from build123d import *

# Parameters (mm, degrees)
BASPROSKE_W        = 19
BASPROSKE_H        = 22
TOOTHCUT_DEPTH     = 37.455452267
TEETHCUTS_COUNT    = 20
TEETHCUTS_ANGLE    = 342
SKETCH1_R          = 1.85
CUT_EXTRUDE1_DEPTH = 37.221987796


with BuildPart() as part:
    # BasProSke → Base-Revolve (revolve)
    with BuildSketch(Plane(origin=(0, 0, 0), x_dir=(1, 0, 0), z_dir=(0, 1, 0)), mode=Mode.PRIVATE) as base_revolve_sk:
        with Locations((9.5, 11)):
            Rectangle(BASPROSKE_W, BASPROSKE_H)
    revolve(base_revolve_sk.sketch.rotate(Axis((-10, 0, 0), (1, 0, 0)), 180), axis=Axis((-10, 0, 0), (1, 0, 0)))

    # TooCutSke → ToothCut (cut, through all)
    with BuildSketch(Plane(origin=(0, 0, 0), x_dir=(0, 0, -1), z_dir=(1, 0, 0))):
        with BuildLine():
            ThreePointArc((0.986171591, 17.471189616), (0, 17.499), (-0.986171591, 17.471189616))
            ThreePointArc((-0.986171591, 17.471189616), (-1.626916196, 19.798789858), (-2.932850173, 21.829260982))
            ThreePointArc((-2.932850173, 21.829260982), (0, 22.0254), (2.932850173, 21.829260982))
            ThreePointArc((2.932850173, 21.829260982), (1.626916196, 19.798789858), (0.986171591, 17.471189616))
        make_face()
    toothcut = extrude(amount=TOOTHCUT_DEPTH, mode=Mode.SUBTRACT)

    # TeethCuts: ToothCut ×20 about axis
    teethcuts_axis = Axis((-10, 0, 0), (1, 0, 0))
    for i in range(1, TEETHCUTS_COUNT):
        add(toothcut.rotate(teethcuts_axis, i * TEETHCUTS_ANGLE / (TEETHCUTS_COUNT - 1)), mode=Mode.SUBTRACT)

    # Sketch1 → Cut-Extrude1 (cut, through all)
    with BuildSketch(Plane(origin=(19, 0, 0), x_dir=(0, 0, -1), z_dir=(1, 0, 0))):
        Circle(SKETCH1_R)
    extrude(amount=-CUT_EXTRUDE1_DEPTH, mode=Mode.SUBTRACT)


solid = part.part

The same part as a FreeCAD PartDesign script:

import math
import FreeCAD as App
import Part
import Sketcher
from FreeCAD import Vector


def add_polygon(sketch, points):
    """Adds a closed chain of lines whose ends are joined by coincident constraints."""
    first, n = sketch.GeometryCount, len(points)
    for a, b in zip(points, points[1:] + points[:1]):
        sketch.addGeometry(Part.LineSegment(App.Vector(*a, 0), App.Vector(*b, 0)), False)
    for i in range(n):
        sketch.addConstraint(Sketcher.Constraint("Coincident", first + i, 2, first + (i + 1) % n, 1))

doc = App.newDocument("Part")
body = doc.addObject("PartDesign::Body", "Body")

sketch1 = body.newObject("Sketcher::SketchObject", "Sketch")
sketch1.AttachmentSupport = (doc.getObject("XZ_Plane"), [""])
sketch1.MapMode = "FlatFace"
add_polygon(sketch1, [(0, -22), (0, 0), (19, 0), (19, -22)])
sketch1.addConstraint([
    Sketcher.Constraint("Vertical", 0),
    Sketcher.Constraint("Horizontal", 1),
    Sketcher.Constraint("Vertical", 2),
    Sketcher.Constraint("Horizontal", 3),
    Sketcher.Constraint("Coincident", 0, 2, -1, 1),
    Sketcher.Constraint("DistanceX", 1, 1, 1, 2, 19.0),
    Sketcher.Constraint("DistanceY", 0, 1, 0, 2, 22.0),
])
revolution = body.newObject("PartDesign::Revolution", "Revolution")
revolution.Profile = sketch1
revolution.ReferenceAxis = (sketch1, ["H_Axis"])
revolution.Angle = 360

sketch2 = body.newObject("Sketcher::SketchObject", "Sketch001")
sketch2.AttachmentSupport = (doc.getObject("YZ_Plane"), [""])
sketch2.MapMode = "FlatFace"
sketch2.addGeometry([
    Part.ArcOfCircle(Part.Circle(Vector(0, 0, 0), Vector(0, 0, 1), 17.5), math.radians(-3.23), math.radians(3.23)),
    Part.ArcOfCircle(Part.Circle(Vector(16.5, -8.9, 0), Vector(0, 0, 1), 8), math.radians(49), math.radians(83)),
    Part.ArcOfCircle(Part.Circle(Vector(0, 0, 0), Vector(0, 0, 1), 22), math.radians(-7.65), math.radians(7.65)),
    Part.ArcOfCircle(Part.Circle(Vector(16.5, 8.9, 0), Vector(0, 0, 1), 8), math.radians(-83), math.radians(-49)),
], False)
sketch2.addConstraint([
    Sketcher.Constraint("Coincident", 0, 1, 1, 2),
    Sketcher.Constraint("Coincident", 1, 1, 2, 1),
    Sketcher.Constraint("Coincident", 2, 2, 3, 2),
    Sketcher.Constraint("Coincident", 3, 1, 0, 2),
    Sketcher.Constraint("Coincident", 0, 3, -1, 1),
    Sketcher.Constraint("Coincident", 2, 3, -1, 1),
    Sketcher.Constraint("Equal", 1, 3),
    Sketcher.Constraint("Symmetric", 1, 3, 3, 3, -1),
    Sketcher.Constraint("Radius", 1, 8.0),
    Sketcher.Constraint("Radius", 0, 17.499),
    Sketcher.Constraint("Radius", 2, 22.0254),
    Sketcher.Constraint("DistanceY", 1, 1, 2, 2, 5.8657),
    Sketcher.Constraint("DistanceX", -1, 1, 1, 3, 16.536031),
])
pocket1 = body.newObject("PartDesign::Pocket", "Pocket")
pocket1.Profile = sketch2
pocket1.Type = "ThroughAll"
pocket1.Reversed = True
doc.recompute()

polarpattern = body.newObject("PartDesign::PolarPattern", "PolarPattern")
polarpattern.Originals = [pocket1]
polarpattern.Axis = (doc.getObject("X_Axis"), [""])
polarpattern.Angle = 360
polarpattern.Occurrences = 20
body.Tip = polarpattern

sketch3 = body.newObject("Sketcher::SketchObject", "Sketch002")
sketch3.AttachmentSupport = (doc.getObject("YZ_Plane"), [""])
sketch3.MapMode = "FlatFace"
sketch3.AttachmentOffset = App.Placement(Vector(0, 0, 19), App.Rotation())
sketch3.addGeometry(Part.Circle(Vector(0, 0, 0), Vector(0, 0, 1), 1.9), False)
sketch3.addConstraint([
    Sketcher.Constraint("Coincident", 0, 3, -1, 1),
    Sketcher.Constraint("Diameter", 0, 3.7),
])
pocket2 = body.newObject("PartDesign::Pocket", "Pocket001")
pocket2.Profile = sketch3
pocket2.Type = "ThroughAll"

doc.recompute()
